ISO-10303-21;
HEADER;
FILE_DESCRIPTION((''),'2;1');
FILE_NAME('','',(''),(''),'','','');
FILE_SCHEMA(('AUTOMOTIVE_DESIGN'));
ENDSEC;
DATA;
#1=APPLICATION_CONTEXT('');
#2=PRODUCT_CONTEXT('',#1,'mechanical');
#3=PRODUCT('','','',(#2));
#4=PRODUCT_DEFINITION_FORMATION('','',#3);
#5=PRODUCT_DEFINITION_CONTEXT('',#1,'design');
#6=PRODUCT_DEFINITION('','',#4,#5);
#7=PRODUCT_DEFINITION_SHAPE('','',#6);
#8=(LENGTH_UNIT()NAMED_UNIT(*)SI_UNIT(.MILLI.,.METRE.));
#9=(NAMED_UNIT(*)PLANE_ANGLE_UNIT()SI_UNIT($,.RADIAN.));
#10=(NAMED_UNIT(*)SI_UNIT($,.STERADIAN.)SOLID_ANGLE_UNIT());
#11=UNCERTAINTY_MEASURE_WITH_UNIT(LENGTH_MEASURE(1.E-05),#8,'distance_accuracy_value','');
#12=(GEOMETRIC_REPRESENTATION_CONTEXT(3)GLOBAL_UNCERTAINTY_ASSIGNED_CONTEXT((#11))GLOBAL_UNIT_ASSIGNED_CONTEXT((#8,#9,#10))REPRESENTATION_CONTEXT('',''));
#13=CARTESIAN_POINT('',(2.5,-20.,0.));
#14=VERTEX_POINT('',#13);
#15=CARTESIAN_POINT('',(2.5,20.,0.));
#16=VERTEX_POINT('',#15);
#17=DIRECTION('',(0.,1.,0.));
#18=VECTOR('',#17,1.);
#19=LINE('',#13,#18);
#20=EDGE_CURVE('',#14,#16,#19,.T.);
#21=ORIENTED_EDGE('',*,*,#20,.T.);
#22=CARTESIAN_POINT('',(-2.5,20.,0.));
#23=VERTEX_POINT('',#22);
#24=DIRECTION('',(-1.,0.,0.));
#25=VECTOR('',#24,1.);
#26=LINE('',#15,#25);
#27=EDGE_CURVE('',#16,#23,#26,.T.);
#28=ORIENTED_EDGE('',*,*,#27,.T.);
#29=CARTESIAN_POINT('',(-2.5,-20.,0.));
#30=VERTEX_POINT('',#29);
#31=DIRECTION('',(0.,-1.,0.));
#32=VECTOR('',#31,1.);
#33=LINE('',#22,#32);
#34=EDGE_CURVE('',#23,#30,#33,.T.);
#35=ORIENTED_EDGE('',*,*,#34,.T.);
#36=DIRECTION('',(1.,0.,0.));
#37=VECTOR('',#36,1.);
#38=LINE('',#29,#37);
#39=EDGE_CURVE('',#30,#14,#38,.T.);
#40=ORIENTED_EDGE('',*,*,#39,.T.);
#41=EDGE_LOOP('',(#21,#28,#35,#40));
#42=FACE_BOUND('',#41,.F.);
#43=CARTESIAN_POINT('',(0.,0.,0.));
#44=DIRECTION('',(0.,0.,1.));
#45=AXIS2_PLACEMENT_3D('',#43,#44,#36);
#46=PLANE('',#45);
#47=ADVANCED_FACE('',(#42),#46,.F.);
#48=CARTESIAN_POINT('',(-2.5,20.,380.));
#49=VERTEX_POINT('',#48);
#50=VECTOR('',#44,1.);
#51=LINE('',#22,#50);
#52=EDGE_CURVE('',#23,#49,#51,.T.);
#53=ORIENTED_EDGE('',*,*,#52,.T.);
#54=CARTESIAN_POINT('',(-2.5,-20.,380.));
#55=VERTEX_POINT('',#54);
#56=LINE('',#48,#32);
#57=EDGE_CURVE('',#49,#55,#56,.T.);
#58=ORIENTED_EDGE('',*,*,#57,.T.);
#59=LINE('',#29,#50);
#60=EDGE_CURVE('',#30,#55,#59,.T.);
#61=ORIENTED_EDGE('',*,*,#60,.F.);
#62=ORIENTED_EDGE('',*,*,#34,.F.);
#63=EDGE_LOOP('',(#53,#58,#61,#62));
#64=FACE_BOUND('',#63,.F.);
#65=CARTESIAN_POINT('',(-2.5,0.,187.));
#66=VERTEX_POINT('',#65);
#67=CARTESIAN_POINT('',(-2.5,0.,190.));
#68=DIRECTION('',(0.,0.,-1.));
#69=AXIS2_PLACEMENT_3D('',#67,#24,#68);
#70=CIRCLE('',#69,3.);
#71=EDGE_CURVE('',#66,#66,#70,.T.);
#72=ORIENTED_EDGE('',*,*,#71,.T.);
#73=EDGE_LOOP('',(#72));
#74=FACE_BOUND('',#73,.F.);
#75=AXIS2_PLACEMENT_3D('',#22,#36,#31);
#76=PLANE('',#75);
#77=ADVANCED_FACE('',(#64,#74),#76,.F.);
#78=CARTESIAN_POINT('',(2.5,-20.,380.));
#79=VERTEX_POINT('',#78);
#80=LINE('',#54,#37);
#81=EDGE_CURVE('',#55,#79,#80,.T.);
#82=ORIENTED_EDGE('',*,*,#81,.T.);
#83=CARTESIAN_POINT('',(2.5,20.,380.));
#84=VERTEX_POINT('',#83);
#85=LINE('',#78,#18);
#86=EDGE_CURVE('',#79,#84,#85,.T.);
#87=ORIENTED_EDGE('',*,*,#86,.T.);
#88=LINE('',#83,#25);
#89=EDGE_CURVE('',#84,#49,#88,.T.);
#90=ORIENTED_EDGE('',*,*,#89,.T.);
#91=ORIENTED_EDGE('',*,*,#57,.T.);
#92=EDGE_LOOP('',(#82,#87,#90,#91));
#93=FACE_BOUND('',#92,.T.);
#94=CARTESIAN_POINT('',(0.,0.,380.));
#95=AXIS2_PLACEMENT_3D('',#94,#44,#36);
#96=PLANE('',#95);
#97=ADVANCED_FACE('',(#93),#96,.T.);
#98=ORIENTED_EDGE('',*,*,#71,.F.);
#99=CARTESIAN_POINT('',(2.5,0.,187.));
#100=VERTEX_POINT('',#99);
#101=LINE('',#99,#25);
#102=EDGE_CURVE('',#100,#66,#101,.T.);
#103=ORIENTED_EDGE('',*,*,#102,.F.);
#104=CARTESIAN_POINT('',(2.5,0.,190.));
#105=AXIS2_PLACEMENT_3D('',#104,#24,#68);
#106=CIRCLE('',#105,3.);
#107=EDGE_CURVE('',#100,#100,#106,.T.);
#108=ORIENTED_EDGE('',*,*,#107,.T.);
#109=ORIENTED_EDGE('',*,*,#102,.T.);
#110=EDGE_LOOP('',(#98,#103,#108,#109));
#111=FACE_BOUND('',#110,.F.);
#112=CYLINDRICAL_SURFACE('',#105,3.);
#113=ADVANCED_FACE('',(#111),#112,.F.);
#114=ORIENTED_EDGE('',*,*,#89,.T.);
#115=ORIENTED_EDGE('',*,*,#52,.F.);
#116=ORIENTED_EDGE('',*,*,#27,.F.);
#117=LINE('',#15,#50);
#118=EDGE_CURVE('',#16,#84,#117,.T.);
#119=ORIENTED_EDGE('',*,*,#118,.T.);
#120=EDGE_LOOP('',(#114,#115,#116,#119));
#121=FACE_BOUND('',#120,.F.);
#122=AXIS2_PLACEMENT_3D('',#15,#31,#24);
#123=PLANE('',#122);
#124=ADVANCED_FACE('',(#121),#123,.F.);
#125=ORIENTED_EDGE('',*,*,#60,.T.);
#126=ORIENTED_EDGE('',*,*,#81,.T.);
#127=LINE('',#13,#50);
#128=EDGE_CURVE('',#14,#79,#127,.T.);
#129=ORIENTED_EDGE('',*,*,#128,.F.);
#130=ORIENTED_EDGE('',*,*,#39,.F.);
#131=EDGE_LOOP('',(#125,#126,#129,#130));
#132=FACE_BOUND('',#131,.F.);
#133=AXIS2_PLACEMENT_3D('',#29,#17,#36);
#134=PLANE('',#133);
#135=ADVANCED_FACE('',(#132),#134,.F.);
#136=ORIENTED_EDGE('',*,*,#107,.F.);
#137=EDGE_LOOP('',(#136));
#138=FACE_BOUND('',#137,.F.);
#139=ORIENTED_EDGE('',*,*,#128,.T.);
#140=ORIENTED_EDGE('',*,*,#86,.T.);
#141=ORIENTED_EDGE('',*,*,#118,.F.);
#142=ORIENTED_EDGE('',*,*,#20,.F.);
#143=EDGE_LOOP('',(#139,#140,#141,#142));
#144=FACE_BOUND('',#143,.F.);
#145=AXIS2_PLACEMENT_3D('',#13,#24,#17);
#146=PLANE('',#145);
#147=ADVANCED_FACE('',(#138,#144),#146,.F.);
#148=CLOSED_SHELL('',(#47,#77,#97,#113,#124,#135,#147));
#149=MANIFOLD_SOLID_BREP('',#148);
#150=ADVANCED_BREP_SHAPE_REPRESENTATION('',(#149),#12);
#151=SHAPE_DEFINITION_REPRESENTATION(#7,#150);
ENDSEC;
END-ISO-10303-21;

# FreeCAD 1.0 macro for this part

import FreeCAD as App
import Part
import Sketcher
from FreeCAD import Vector

doc = App.newDocument("Part")
params = doc.addObject("Spreadsheet::Sheet", "Params")
for row, (alias, value) in enumerate([
    ("sketch1_width", "5 mm"),
    ("sketch1_height", "40 mm"),
    ("pad1_length", "380 mm"),
    ("sketch2_diameter", "6 mm"),
    ("hole_diameter", "6 mm"),
], start=1):
    params.set(f"A{row}", alias)
    params.set(f"B{row}", "=" + value)
    params.setAlias(f"B{row}", alias)

body = doc.addObject("PartDesign::Body", "Body")

# Sketch on XY plane
sketch1 = body.newObject("Sketcher::SketchObject", "Sketch")
sketch1.AttachmentSupport = (doc.getObject("XY_Plane"), [""])
sketch1.MapMode = "FlatFace"
sketch1.addGeometry([
    Part.LineSegment(Vector(-2, 20, 0), Vector(-2, -20, 0)),
    Part.LineSegment(Vector(-2, -20, 0), Vector(2, -20, 0)),
    Part.LineSegment(Vector(2, -20, 0), Vector(2, 20, 0)),
    Part.LineSegment(Vector(2, 20, 0), Vector(-2, 20, 0)),
], False)
sketch1.addConstraint([
    Sketcher.Constraint("Coincident", 0, 2, 1, 1),
    Sketcher.Constraint("Coincident", 1, 2, 2, 1),
    Sketcher.Constraint("Coincident", 2, 2, 3, 1),
    Sketcher.Constraint("Coincident", 3, 2, 0, 1),
    Sketcher.Constraint("Vertical", 0),
    Sketcher.Constraint("Horizontal", 1),
    Sketcher.Constraint("Vertical", 2),
    Sketcher.Constraint("Horizontal", 3),
    Sketcher.Constraint("Symmetric", 0, 2, 2, 2, -1, 1),
    Sketcher.Constraint("DistanceX", 1, 1, 1, 2, 5.0),
    Sketcher.Constraint("DistanceY", 0, 2, 0, 1, 40.0),
])
sketch1.setExpression("Constraints[9]", "Params.sketch1_width")
sketch1.setExpression("Constraints[10]", "Params.sketch1_height")
pad1 = body.newObject("PartDesign::Pad", "Pad")
pad1.Profile = sketch1
pad1.setExpression("Length", "Params.pad1_length")

# Sketch on YZ plane
sketch2 = body.newObject("Sketcher::SketchObject", "Sketch001")
sketch2.AttachmentSupport = (doc.getObject("YZ_Plane"), [""])
sketch2.MapMode = "FlatFace"
sketch2.AttachmentOffset = App.Placement(Vector(0, 0, 2.5), App.Rotation())
sketch2.addGeometry(Part.Circle(Vector(0, 190, 0), Vector(0, 0, 1), 3), False)
sketch2.addConstraint([
    Sketcher.Constraint("PointOnObject", 0, 3, -2),
    Sketcher.Constraint("Diameter", 0, 6.0),
    Sketcher.Constraint("DistanceY", -1, 1, 0, 3, 190.0),
])
sketch2.setExpression("Constraints[1]", "Params.sketch2_diameter")
doc.recompute()
hole = body.newObject("PartDesign::Hole", "Hole")
hole.Profile = sketch2
hole.ThreadType = "None"
hole.setExpression("Diameter", "Params.hole_diameter")
hole.DepthType = "ThroughAll"

doc.recompute()
